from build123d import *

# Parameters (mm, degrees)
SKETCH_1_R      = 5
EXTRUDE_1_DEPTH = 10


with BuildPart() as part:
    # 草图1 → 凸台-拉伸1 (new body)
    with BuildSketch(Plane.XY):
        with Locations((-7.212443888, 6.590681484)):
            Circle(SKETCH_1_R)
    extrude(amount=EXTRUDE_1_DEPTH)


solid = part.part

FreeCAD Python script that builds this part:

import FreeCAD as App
import Part
import Sketcher
Q = App.Units.Quantity

doc = App.newDocument("Part")
body = doc.addObject("PartDesign::Body", "Body")

# Sketch on XY plane
sketch1 = body.newObject("Sketcher::SketchObject", "Sketch")
sketch1.AttachmentSupport = (doc.getObject("XY_Plane"), [""])
sketch1.MapMode = "FlatFace"
sketch1.addGeometry(Part.Circle(App.Vector(-7.212444, 6.590681, 0), App.Vector(0, 0, 1), 5), False)
sketch1.addConstraint(Sketcher.Constraint("Diameter", 0, Q("10 mm")))
sketch1.addConstraint(Sketcher.Constraint("DistanceY", -1, 1, 0, 3, Q("6.590681 mm")))
sketch1.addConstraint(Sketcher.Constraint("DistanceX", 0, 3, -1, 1, Q("7.212444 mm")))
pad1 = body.newObject("PartDesign::Pad", "Pad")
pad1.Profile = sketch1
pad1.Length = 10

doc.recompute()
